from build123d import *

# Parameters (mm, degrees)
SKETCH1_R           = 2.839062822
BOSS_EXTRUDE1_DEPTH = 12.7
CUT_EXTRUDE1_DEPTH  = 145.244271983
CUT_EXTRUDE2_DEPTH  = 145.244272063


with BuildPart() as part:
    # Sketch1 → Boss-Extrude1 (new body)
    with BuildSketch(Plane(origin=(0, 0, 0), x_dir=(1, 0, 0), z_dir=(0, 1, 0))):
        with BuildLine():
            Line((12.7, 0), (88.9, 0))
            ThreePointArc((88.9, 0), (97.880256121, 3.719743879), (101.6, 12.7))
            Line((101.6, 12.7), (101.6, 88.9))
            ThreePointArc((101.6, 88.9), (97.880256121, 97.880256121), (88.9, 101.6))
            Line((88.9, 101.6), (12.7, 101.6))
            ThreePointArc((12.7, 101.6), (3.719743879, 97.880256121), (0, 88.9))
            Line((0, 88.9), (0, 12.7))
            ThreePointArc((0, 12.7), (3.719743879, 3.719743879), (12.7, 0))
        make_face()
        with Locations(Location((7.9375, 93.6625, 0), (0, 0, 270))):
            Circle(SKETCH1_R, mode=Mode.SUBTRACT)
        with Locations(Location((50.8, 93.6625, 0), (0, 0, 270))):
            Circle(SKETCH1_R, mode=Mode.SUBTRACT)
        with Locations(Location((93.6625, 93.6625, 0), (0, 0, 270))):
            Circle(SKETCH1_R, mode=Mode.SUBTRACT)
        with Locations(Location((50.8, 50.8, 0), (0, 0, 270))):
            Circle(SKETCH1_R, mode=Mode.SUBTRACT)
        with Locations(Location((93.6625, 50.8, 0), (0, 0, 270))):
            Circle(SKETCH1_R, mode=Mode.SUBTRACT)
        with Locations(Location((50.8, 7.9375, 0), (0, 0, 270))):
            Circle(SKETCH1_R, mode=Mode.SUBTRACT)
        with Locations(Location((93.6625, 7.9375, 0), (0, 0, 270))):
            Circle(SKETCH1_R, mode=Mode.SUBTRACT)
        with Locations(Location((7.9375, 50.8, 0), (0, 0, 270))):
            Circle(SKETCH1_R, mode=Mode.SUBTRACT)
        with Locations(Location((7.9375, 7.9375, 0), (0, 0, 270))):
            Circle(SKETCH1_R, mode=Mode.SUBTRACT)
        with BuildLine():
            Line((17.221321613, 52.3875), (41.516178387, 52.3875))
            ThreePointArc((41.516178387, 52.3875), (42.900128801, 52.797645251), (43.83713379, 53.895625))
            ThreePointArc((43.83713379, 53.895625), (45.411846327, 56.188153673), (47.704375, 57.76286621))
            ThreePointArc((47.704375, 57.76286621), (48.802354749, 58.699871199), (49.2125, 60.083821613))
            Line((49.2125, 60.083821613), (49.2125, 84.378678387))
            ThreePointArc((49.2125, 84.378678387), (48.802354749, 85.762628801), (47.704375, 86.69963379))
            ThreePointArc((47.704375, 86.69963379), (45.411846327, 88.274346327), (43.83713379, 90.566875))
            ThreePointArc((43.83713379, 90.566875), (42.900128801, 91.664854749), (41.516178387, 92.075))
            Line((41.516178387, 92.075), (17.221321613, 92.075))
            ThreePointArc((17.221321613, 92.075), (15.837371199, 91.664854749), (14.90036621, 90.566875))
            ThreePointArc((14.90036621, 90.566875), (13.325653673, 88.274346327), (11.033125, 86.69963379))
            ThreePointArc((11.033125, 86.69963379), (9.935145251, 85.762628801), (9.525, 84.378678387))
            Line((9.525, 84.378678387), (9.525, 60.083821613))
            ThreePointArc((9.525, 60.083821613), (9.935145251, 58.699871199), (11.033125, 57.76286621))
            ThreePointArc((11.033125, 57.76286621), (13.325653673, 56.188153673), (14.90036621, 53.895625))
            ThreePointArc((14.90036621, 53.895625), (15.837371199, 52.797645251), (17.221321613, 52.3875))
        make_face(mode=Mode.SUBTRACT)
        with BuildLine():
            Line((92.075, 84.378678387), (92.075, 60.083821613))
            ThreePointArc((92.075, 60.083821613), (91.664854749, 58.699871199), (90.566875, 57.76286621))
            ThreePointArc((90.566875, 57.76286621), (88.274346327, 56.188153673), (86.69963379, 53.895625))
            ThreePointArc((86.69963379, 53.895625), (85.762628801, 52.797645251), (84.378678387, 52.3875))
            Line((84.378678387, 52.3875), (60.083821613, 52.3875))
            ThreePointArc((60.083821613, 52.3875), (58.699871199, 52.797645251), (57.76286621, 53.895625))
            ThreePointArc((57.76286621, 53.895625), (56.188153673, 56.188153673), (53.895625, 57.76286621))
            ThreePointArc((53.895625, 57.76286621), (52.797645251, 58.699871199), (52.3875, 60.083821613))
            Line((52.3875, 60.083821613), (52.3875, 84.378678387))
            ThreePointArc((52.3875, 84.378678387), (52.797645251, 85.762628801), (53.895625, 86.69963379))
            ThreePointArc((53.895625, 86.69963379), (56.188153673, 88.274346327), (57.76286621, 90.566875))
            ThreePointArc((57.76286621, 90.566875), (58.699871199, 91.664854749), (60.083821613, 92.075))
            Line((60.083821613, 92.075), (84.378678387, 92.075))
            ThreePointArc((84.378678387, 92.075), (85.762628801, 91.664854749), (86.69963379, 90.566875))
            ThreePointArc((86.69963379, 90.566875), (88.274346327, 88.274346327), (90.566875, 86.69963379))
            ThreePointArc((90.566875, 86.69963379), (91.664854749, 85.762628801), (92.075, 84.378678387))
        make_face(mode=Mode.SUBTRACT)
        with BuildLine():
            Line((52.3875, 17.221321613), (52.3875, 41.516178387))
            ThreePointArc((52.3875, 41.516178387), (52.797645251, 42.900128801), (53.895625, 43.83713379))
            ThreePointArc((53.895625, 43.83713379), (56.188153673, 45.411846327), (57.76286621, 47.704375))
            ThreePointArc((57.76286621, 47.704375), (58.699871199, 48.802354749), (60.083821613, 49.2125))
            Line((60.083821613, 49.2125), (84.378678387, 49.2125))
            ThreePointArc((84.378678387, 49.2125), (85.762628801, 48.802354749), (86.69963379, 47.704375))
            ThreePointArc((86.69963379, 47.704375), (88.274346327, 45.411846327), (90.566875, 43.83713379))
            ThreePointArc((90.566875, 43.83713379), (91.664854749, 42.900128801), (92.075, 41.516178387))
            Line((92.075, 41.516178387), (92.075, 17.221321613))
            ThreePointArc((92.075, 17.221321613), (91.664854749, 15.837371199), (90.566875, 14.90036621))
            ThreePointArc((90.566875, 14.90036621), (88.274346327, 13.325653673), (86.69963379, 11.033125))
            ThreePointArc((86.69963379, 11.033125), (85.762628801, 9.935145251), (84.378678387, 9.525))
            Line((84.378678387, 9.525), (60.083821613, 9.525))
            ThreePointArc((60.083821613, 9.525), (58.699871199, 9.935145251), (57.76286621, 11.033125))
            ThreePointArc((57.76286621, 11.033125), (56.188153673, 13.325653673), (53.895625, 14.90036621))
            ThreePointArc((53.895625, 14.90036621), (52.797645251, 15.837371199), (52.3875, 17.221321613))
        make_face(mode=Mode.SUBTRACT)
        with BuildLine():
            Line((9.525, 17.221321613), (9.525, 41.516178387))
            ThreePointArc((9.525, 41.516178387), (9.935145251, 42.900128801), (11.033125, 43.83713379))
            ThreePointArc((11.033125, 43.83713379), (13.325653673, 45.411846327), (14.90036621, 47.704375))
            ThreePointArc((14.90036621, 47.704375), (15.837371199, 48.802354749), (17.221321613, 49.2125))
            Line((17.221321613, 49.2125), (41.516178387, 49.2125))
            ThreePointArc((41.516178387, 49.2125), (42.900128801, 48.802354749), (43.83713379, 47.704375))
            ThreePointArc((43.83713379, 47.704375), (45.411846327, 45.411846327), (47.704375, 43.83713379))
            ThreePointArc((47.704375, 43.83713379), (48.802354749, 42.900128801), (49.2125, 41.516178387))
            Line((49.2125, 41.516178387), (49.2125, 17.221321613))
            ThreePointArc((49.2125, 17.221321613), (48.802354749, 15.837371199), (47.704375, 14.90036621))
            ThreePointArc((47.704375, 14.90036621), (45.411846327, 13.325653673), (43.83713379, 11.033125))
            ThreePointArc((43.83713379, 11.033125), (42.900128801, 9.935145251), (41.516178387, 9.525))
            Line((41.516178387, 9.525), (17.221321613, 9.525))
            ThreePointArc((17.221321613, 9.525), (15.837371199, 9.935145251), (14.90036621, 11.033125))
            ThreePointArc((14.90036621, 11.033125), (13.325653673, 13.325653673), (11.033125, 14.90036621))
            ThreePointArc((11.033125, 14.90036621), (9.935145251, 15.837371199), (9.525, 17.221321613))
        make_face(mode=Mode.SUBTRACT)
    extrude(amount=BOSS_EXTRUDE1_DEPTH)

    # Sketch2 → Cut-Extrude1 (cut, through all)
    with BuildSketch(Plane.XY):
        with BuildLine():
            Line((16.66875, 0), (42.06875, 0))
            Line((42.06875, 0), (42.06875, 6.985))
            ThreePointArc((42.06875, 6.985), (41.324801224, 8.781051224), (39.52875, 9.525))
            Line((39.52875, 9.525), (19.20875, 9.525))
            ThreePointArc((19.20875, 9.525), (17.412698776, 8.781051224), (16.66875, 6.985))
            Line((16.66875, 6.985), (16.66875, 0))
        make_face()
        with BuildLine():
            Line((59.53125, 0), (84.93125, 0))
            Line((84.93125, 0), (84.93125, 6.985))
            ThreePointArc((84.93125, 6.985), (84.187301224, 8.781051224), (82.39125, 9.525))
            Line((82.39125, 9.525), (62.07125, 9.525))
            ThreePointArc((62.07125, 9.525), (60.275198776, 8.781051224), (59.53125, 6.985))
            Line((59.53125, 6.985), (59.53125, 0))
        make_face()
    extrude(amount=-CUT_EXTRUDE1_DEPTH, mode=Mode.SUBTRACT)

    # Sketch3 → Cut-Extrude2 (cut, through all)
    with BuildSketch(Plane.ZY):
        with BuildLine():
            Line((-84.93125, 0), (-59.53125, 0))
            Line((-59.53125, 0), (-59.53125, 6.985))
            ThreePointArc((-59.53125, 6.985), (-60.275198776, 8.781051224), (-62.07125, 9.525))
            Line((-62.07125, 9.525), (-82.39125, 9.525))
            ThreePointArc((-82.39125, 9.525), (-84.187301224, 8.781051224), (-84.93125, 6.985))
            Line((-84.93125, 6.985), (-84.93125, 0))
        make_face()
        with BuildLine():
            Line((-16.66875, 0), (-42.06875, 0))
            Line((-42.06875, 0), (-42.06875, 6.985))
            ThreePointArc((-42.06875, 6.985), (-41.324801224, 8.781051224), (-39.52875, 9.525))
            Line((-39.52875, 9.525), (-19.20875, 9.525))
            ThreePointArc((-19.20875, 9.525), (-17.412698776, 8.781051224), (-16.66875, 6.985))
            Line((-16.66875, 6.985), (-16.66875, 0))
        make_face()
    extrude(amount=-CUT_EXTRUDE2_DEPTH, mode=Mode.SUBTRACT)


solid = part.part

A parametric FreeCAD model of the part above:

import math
import FreeCAD as App
import Part
import Sketcher
Q = App.Units.Quantity

doc = App.newDocument("Part")
body = doc.addObject("PartDesign::Body", "Body")

sketch1 = body.newObject("Sketcher::SketchObject", "Sketch")
sketch1.AttachmentSupport = (doc.getObject("XZ_Plane"), [""])
sketch1.MapMode = "FlatFace"
sketch1.addGeometry(Part.LineSegment(App.Vector(12.7, 0, 0), App.Vector(88.9, 0, 0)), False)
sketch1.addGeometry(Part.ArcOfCircle(Part.Circle(App.Vector(88.9, -12.7, 0), App.Vector(0, 0, 1), 12.7), math.radians(0), math.radians(90)), False)
sketch1.addGeometry(Part.LineSegment(App.Vector(101.6, -12.7, 0), App.Vector(101.6, -88.9, 0)), False)
sketch1.addGeometry(Part.ArcOfCircle(Part.Circle(App.Vector(88.9, -88.9, 0), App.Vector(0, 0, 1), 12.7), math.radians(-90), math.radians(0)), False)
sketch1.addGeometry(Part.LineSegment(App.Vector(88.9, -101.6, 0), App.Vector(12.7, -101.6, 0)), False)
sketch1.addGeometry(Part.ArcOfCircle(Part.Circle(App.Vector(12.7, -88.9, 0), App.Vector(0, 0, 1), 12.7), math.radians(180), math.radians(270)), False)
sketch1.addGeometry(Part.LineSegment(App.Vector(0, -88.9, 0), App.Vector(0, -12.7, 0)), False)
sketch1.addGeometry(Part.ArcOfCircle(Part.Circle(App.Vector(12.7, -12.7, 0), App.Vector(0, 0, 1), 12.7), math.radians(90), math.radians(180)), False)
sketch1.addGeometry(Part.Circle(App.Vector(7.9, -7.9, 0), App.Vector(0, 0, 1), 2.8), False)
sketch1.addGeometry(Part.ArcOfCircle(Part.Circle(App.Vector(12.1, -17.2, 0), App.Vector(0, 0, 1), 2.5), math.radians(114), math.radians(180)), False)
sketch1.addGeometry(Part.LineSegment(App.Vector(9.5, -17.2, 0), App.Vector(9.5, -41.5, 0)), False)
sketch1.addGeometry(Part.ArcOfCircle(Part.Circle(App.Vector(12.1, -41.5, 0), App.Vector(0, 0, 1), 2.5), math.radians(180), math.radians(246)), False)
sketch1.addGeometry(Part.ArcOfCircle(Part.Circle(App.Vector(7.9, -50.8, 0), App.Vector(0, 0, 1), 7.6), math.radians(24), math.radians(66)), False)
sketch1.addGeometry(Part.ArcOfCircle(Part.Circle(App.Vector(17.2, -46.7, 0), App.Vector(0, 0, 1), 2.5), math.radians(-156), math.radians(-90)), False)
sketch1.addGeometry(Part.LineSegment(App.Vector(17.2, -49.2, 0), App.Vector(41.5, -49.2, 0)), False)
sketch1.addGeometry(Part.ArcOfCircle(Part.Circle(App.Vector(41.5, -46.7, 0), App.Vector(0, 0, 1), 2.5), math.radians(-90), math.radians(-24)), False)
sketch1.addGeometry(Part.ArcOfCircle(Part.Circle(App.Vector(50.8, -50.8, 0), App.Vector(0, 0, 1), 7.6), math.radians(114), math.radians(156)), False)
sketch1.addGeometry(Part.ArcOfCircle(Part.Circle(App.Vector(46.7, -41.5, 0), App.Vector(0, 0, 1), 2.5), math.radians(-66), math.radians(0)), False)
sketch1.addGeometry(Part.LineSegment(App.Vector(49.2, -41.5, 0), App.Vector(49.2, -17.2, 0)), False)
sketch1.addGeometry(Part.ArcOfCircle(Part.Circle(App.Vector(46.7, -17.2, 0), App.Vector(0, 0, 1), 2.5), math.radians(0), math.radians(66)), False)
sketch1.addGeometry(Part.ArcOfCircle(Part.Circle(App.Vector(50.8, -7.9, 0), App.Vector(0, 0, 1), 7.6), math.radians(-156), math.radians(-114)), False)
sketch1.addGeometry(Part.ArcOfCircle(Part.Circle(App.Vector(41.5, -12.1, 0), App.Vector(0, 0, 1), 2.5), math.radians(24), math.radians(90)), False)
sketch1.addGeometry(Part.LineSegment(App.Vector(41.5, -9.5, 0), App.Vector(17.2, -9.5, 0)), False)
sketch1.addGeometry(Part.ArcOfCircle(Part.Circle(App.Vector(17.2, -12.1, 0), App.Vector(0, 0, 1), 2.5), math.radians(90), math.radians(156)), False)
sketch1.addGeometry(Part.ArcOfCircle(Part.Circle(App.Vector(7.9, -7.9, 0), App.Vector(0, 0, 1), 7.6), math.radians(-66), math.radians(-24)), False)
sketch1.addGeometry(Part.Circle(App.Vector(50.8, -7.9, 0), App.Vector(0, 0, 1), 2.8), False)
sketch1.addGeometry(Part.Circle(App.Vector(93.7, -7.9, 0), App.Vector(0, 0, 1), 2.8), False)
sketch1.addGeometry(Part.ArcOfCircle(Part.Circle(App.Vector(54.9, -17.2, 0), App.Vector(0, 0, 1), 2.5), math.radians(114), math.radians(180)), False)
sketch1.addGeometry(Part.LineSegment(App.Vector(52.4, -17.2, 0), App.Vector(52.4, -41.5, 0)), False)
sketch1.addGeometry(Part.ArcOfCircle(Part.Circle(App.Vector(54.9, -41.5, 0), App.Vector(0, 0, 1), 2.5), math.radians(180), math.radians(246)), False)
sketch1.addGeometry(Part.ArcOfCircle(Part.Circle(App.Vector(50.8, -50.8, 0), App.Vector(0, 0, 1), 7.6), math.radians(24), math.radians(66)), False)
sketch1.addGeometry(Part.ArcOfCircle(Part.Circle(App.Vector(60.1, -46.7, 0), App.Vector(0, 0, 1), 2.5), math.radians(-156), math.radians(-90)), False)
sketch1.addGeometry(Part.LineSegment(App.Vector(60.1, -49.2, 0), App.Vector(84.4, -49.2, 0)), False)
sketch1.addGeometry(Part.ArcOfCircle(Part.Circle(App.Vector(84.4, -46.7, 0), App.Vector(0, 0, 1), 2.5), math.radians(-90), math.radians(-24)), False)
sketch1.addGeometry(Part.ArcOfCircle(Part.Circle(App.Vector(93.7, -50.8, 0), App.Vector(0, 0, 1), 7.6), math.radians(114), math.radians(156)), False)
sketch1.addGeometry(Part.ArcOfCircle(Part.Circle(App.Vector(89.5, -41.5, 0), App.Vector(0, 0, 1), 2.5), math.radians(-66), math.radians(0)), False)
sketch1.addGeometry(Part.LineSegment(App.Vector(92.1, -41.5, 0), App.Vector(92.1, -17.2, 0)), False)
sketch1.addGeometry(Part.ArcOfCircle(Part.Circle(App.Vector(89.5, -17.2, 0), App.Vector(0, 0, 1), 2.5), math.radians(0), math.radians(66)), False)
sketch1.addGeometry(Part.ArcOfCircle(Part.Circle(App.Vector(93.7, -7.9, 0), App.Vector(0, 0, 1), 7.6), math.radians(-156), math.radians(-114)), False)
sketch1.addGeometry(Part.ArcOfCircle(Part.Circle(App.Vector(84.4, -12.1, 0), App.Vector(0, 0, 1), 2.5), math.radians(24), math.radians(90)), False)
sketch1.addGeometry(Part.LineSegment(App.Vector(84.4, -9.5, 0), App.Vector(60.1, -9.5, 0)), False)
sketch1.addGeometry(Part.ArcOfCircle(Part.Circle(App.Vector(60.1, -12.1, 0), App.Vector(0, 0, 1), 2.5), math.radians(90), math.radians(156)), False)
sketch1.addGeometry(Part.ArcOfCircle(Part.Circle(App.Vector(50.8, -7.9, 0), App.Vector(0, 0, 1), 7.6), math.radians(-66), math.radians(-24)), False)
sketch1.addGeometry(Part.Circle(App.Vector(7.9, -50.8, 0), App.Vector(0, 0, 1), 2.8), False)
sketch1.addGeometry(Part.LineSegment(App.Vector(41.5, -52.4, 0), App.Vector(17.2, -52.4, 0)), False)
sketch1.addGeometry(Part.ArcOfCircle(Part.Circle(App.Vector(17.2, -54.9, 0), App.Vector(0, 0, 1), 2.5), math.radians(90), math.radians(156)), False)
sketch1.addGeometry(Part.ArcOfCircle(Part.Circle(App.Vector(7.9, -50.8, 0), App.Vector(0, 0, 1), 7.6), math.radians(-66), math.radians(-24)), False)
sketch1.addGeometry(Part.ArcOfCircle(Part.Circle(App.Vector(12.1, -60.1, 0), App.Vector(0, 0, 1), 2.5), math.radians(114), math.radians(180)), False)
sketch1.addGeometry(Part.LineSegment(App.Vector(9.5, -60.1, 0), App.Vector(9.5, -84.4, 0)), False)
sketch1.addGeometry(Part.ArcOfCircle(Part.Circle(App.Vector(12.1, -84.4, 0), App.Vector(0, 0, 1), 2.5), math.radians(180), math.radians(246)), False)
sketch1.addGeometry(Part.ArcOfCircle(Part.Circle(App.Vector(7.9, -93.7, 0), App.Vector(0, 0, 1), 7.6), math.radians(24), math.radians(66)), False)
sketch1.addGeometry(Part.ArcOfCircle(Part.Circle(App.Vector(17.2, -89.5, 0), App.Vector(0, 0, 1), 2.5), math.radians(-156), math.radians(-90)), False)
sketch1.addGeometry(Part.LineSegment(App.Vector(17.2, -92.1, 0), App.Vector(41.5, -92.1, 0)), False)
sketch1.addGeometry(Part.ArcOfCircle(Part.Circle(App.Vector(41.5, -89.5, 0), App.Vector(0, 0, 1), 2.5), math.radians(-90), math.radians(-24)), False)
sketch1.addGeometry(Part.ArcOfCircle(Part.Circle(App.Vector(50.8, -93.7, 0), App.Vector(0, 0, 1), 7.6), math.radians(114), math.radians(156)), False)
sketch1.addGeometry(Part.ArcOfCircle(Part.Circle(App.Vector(46.7, -84.4, 0), App.Vector(0, 0, 1), 2.5), math.radians(-66), math.radians(0)), False)
sketch1.addGeometry(Part.LineSegment(App.Vector(49.2, -84.4, 0), App.Vector(49.2, -60.1, 0)), False)
sketch1.addGeometry(Part.ArcOfCircle(Part.Circle(App.Vector(46.7, -60.1, 0), App.Vector(0, 0, 1), 2.5), math.radians(0), math.radians(66)), False)
sketch1.addGeometry(Part.ArcOfCircle(Part.Circle(App.Vector(50.8, -50.8, 0), App.Vector(0, 0, 1), 7.6), math.radians(-156), math.radians(-114)), False)
sketch1.addGeometry(Part.ArcOfCircle(Part.Circle(App.Vector(41.5, -54.9, 0), App.Vector(0, 0, 1), 2.5), math.radians(24), math.radians(90)), False)
sketch1.addGeometry(Part.Circle(App.Vector(7.9, -93.7, 0), App.Vector(0, 0, 1), 2.8), False)
sketch1.addGeometry(Part.Circle(App.Vector(50.8, -50.8, 0), App.Vector(0, 0, 1), 2.8), False)
sketch1.addGeometry(Part.ArcOfCircle(Part.Circle(App.Vector(89.5, -84.4, 0), App.Vector(0, 0, 1), 2.5), math.radians(-66), math.radians(0)), False)
sketch1.addGeometry(Part.LineSegment(App.Vector(92.1, -84.4, 0), App.Vector(92.1, -60.1, 0)), False)
sketch1.addGeometry(Part.ArcOfCircle(Part.Circle(App.Vector(89.5, -60.1, 0), App.Vector(0, 0, 1), 2.5), math.radians(0), math.radians(66)), False)
sketch1.addGeometry(Part.ArcOfCircle(Part.Circle(App.Vector(93.7, -50.8, 0), App.Vector(0, 0, 1), 7.6), math.radians(-156), math.radians(-114)), False)
sketch1.addGeometry(Part.ArcOfCircle(Part.Circle(App.Vector(84.4, -54.9, 0), App.Vector(0, 0, 1), 2.5), math.radians(24), math.radians(90)), False)
sketch1.addGeometry(Part.LineSegment(App.Vector(84.4, -52.4, 0), App.Vector(60.1, -52.4, 0)), False)
sketch1.addGeometry(Part.ArcOfCircle(Part.Circle(App.Vector(60.1, -54.9, 0), App.Vector(0, 0, 1), 2.5), math.radians(90), math.radians(156)), False)
sketch1.addGeometry(Part.ArcOfCircle(Part.Circle(App.Vector(50.8, -50.8, 0), App.Vector(0, 0, 1), 7.6), math.radians(-66), math.radians(-24)), False)
sketch1.addGeometry(Part.ArcOfCircle(Part.Circle(App.Vector(54.9, -60.1, 0), App.Vector(0, 0, 1), 2.5), math.radians(114), math.radians(180)), False)
sketch1.addGeometry(Part.LineSegment(App.Vector(52.4, -60.1, 0), App.Vector(52.4, -84.4, 0)), False)
sketch1.addGeometry(Part.ArcOfCircle(Part.Circle(App.Vector(54.9, -84.4, 0), App.Vector(0, 0, 1), 2.5), math.radians(180), math.radians(246)), False)
sketch1.addGeometry(Part.ArcOfCircle(Part.Circle(App.Vector(50.8, -93.7, 0), App.Vector(0, 0, 1), 7.6), math.radians(24), math.radians(66)), False)
sketch1.addGeometry(Part.ArcOfCircle(Part.Circle(App.Vector(60.1, -89.5, 0), App.Vector(0, 0, 1), 2.5), math.radians(-156), math.radians(-90)), False)
sketch1.addGeometry(Part.LineSegment(App.Vector(60.1, -92.1, 0), App.Vector(84.4, -92.1, 0)), False)
sketch1.addGeometry(Part.ArcOfCircle(Part.Circle(App.Vector(84.4, -89.5, 0), App.Vector(0, 0, 1), 2.5), math.radians(-90), math.radians(-24)), False)
sketch1.addGeometry(Part.ArcOfCircle(Part.Circle(App.Vector(93.7, -93.7, 0), App.Vector(0, 0, 1), 7.6), math.radians(114), math.radians(156)), False)
sketch1.addGeometry(Part.Circle(App.Vector(93.7, -50.8, 0), App.Vector(0, 0, 1), 2.8), False)
sketch1.addGeometry(Part.Circle(App.Vector(50.8, -93.7, 0), App.Vector(0, 0, 1), 2.8), False)
sketch1.addGeometry(Part.Circle(App.Vector(93.7, -93.7, 0), App.Vector(0, 0, 1), 2.8), False)
sketch1.addConstraint(Sketcher.Constraint("Tangent", 0, 2, 1, 2))
sketch1.addConstraint(Sketcher.Constraint("Tangent", 1, 1, 2, 1))
sketch1.addConstraint(Sketcher.Constraint("Tangent", 2, 2, 3, 2))
sketch1.addConstraint(Sketcher.Constraint("Tangent", 3, 1, 4, 1))
sketch1.addConstraint(Sketcher.Constraint("Tangent", 4, 2, 5, 2))
sketch1.addConstraint(Sketcher.Constraint("Tangent", 5, 1, 6, 1))
sketch1.addConstraint(Sketcher.Constraint("Tangent", 6, 2, 7, 2))
sketch1.addConstraint(Sketcher.Constraint("Tangent", 7, 1, 0, 1))
sketch1.addConstraint(Sketcher.Constraint("Tangent", 9, 2, 10, 1))
sketch1.addConstraint(Sketcher.Constraint("Tangent", 10, 2, 11, 1))
sketch1.addConstraint(Sketcher.Constraint("Tangent", 11, 2, 12, 2))
sketch1.addConstraint(Sketcher.Constraint("Tangent", 12, 1, 13, 1))
sketch1.addConstraint(Sketcher.Constraint("Tangent", 13, 2, 14, 1))
sketch1.addConstraint(Sketcher.Constraint("Tangent", 14, 2, 15, 1))
sketch1.addConstraint(Sketcher.Constraint("Tangent", 15, 2, 16, 2))
sketch1.addConstraint(Sketcher.Constraint("Tangent", 16, 1, 17, 1))
sketch1.addConstraint(Sketcher.Constraint("Tangent", 17, 2, 18, 1))
sketch1.addConstraint(Sketcher.Constraint("Tangent", 18, 2, 19, 1))
sketch1.addConstraint(Sketcher.Constraint("Tangent", 19, 2, 20, 2))
sketch1.addConstraint(Sketcher.Constraint("Tangent", 20, 1, 21, 1))
sketch1.addConstraint(Sketcher.Constraint("Tangent", 21, 2, 22, 1))
sketch1.addConstraint(Sketcher.Constraint("Tangent", 22, 2, 23, 1))
sketch1.addConstraint(Sketcher.Constraint("Tangent", 23, 2, 24, 2))
sketch1.addConstraint(Sketcher.Constraint("Tangent", 24, 1, 9, 1))
sketch1.addConstraint(Sketcher.Constraint("Tangent", 27, 2, 28, 1))
sketch1.addConstraint(Sketcher.Constraint("Tangent", 28, 2, 29, 1))
sketch1.addConstraint(Sketcher.Constraint("Tangent", 29, 2, 30, 2))
sketch1.addConstraint(Sketcher.Constraint("Tangent", 30, 1, 31, 1))
sketch1.addConstraint(Sketcher.Constraint("Tangent", 31, 2, 32, 1))
sketch1.addConstraint(Sketcher.Constraint("Tangent", 32, 2, 33, 1))
sketch1.addConstraint(Sketcher.Constraint("Tangent", 33, 2, 34, 2))
sketch1.addConstraint(Sketcher.Constraint("Tangent", 34, 1, 35, 1))
sketch1.addConstraint(Sketcher.Constraint("Tangent", 35, 2, 36, 1))
sketch1.addConstraint(Sketcher.Constraint("Tangent", 36, 2, 37, 1))
sketch1.addConstraint(Sketcher.Constraint("Tangent", 37, 2, 38, 2))
sketch1.addConstraint(Sketcher.Constraint("Tangent", 38, 1, 39, 1))
sketch1.addConstraint(Sketcher.Constraint("Tangent", 39, 2, 40, 1))
sketch1.addConstraint(Sketcher.Constraint("Tangent", 40, 2, 41, 1))
sketch1.addConstraint(Sketcher.Constraint("Tangent", 41, 2, 42, 2))
sketch1.addConstraint(Sketcher.Constraint("Tangent", 42, 1, 27, 1))
sketch1.addConstraint(Sketcher.Constraint("Tangent", 44, 2, 45, 1))
sketch1.addConstraint(Sketcher.Constraint("Tangent", 45, 2, 46, 2))
sketch1.addConstraint(Sketcher.Constraint("Tangent", 46, 1, 47, 1))
sketch1.addConstraint(Sketcher.Constraint("Tangent", 47, 2, 48, 1))
sketch1.addConstraint(Sketcher.Constraint("Tangent", 48, 2, 49, 1))
sketch1.addConstraint(Sketcher.Constraint("Tangent", 49, 2, 50, 2))
sketch1.addConstraint(Sketcher.Constraint("Tangent", 50, 1, 51, 1))
sketch1.addConstraint(Sketcher.Constraint("Tangent", 51, 2, 52, 1))
sketch1.addConstraint(Sketcher.Constraint("Tangent", 52, 2, 53, 1))
sketch1.addConstraint(Sketcher.Constraint("Tangent", 53, 2, 54, 2))
sketch1.addConstraint(Sketcher.Constraint("Tangent", 54, 1, 55, 1))
sketch1.addConstraint(Sketcher.Constraint("Tangent", 55, 2, 56, 1))
sketch1.addConstraint(Sketcher.Constraint("Tangent", 56, 2, 57, 1))
sketch1.addConstraint(Sketcher.Constraint("Tangent", 57, 2, 58, 2))
sketch1.addConstraint(Sketcher.Constraint("Tangent", 58, 1, 59, 1))
sketch1.addConstraint(Sketcher.Constraint("Tangent", 59, 2, 44, 1))
sketch1.addConstraint(Sketcher.Constraint("Tangent", 62, 2, 63, 1))
sketch1.addConstraint(Sketcher.Constraint("Tangent", 63, 2, 64, 1))
sketch1.addConstraint(Sketcher.Constraint("Tangent", 64, 2, 65, 2))
sketch1.addConstraint(Sketcher.Constraint("Tangent", 65, 1, 66, 1))
sketch1.addConstraint(Sketcher.Constraint("Tangent", 66, 2, 67, 1))
sketch1.addConstraint(Sketcher.Constraint("Tangent", 67, 2, 68, 1))
sketch1.addConstraint(Sketcher.Constraint("Tangent", 68, 2, 69, 2))
sketch1.addConstraint(Sketcher.Constraint("Tangent", 69, 1, 70, 1))
sketch1.addConstraint(Sketcher.Constraint("Tangent", 70, 2, 71, 1))
sketch1.addConstraint(Sketcher.Constraint("Tangent", 71, 2, 72, 1))
sketch1.addConstraint(Sketcher.Constraint("Tangent", 72, 2, 73, 2))
sketch1.addConstraint(Sketcher.Constraint("Tangent", 73, 1, 74, 1))
sketch1.addConstraint(Sketcher.Constraint("Tangent", 74, 2, 75, 1))
sketch1.addConstraint(Sketcher.Constraint("Tangent", 75, 2, 76, 1))
sketch1.addConstraint(Sketcher.Constraint("Tangent", 76, 2, 77, 2))
sketch1.addConstraint(Sketcher.Constraint("Tangent", 77, 1, 62, 1))
sketch1.addConstraint(Sketcher.Constraint("Horizontal", 0))
sketch1.addConstraint(Sketcher.Constraint("Vertical", 2))
sketch1.addConstraint(Sketcher.Constraint("Horizontal", 4))
sketch1.addConstraint(Sketcher.Constraint("Vertical", 6))
sketch1.addConstraint(Sketcher.Constraint("Vertical", 10))
sketch1.addConstraint(Sketcher.Constraint("Horizontal", 14))
sketch1.addConstraint(Sketcher.Constraint("Vertical", 18))
sketch1.addConstraint(Sketcher.Constraint("Horizontal", 22))
sketch1.addConstraint(Sketcher.Constraint("Vertical", 28))
sketch1.addConstraint(Sketcher.Constraint("Horizontal", 32))
sketch1.addConstraint(Sketcher.Constraint("Vertical", 36))
sketch1.addConstraint(Sketcher.Constraint("Horizontal", 40))
sketch1.addConstraint(Sketcher.Constraint("Horizontal", 44))
sketch1.addConstraint(Sketcher.Constraint("Vertical", 48))
sketch1.addConstraint(Sketcher.Constraint("Horizontal", 52))
sketch1.addConstraint(Sketcher.Constraint("Vertical", 56))
sketch1.addConstraint(Sketcher.Constraint("Vertical", 63))
sketch1.addConstraint(Sketcher.Constraint("Horizontal", 67))
sketch1.addConstraint(Sketcher.Constraint("Vertical", 71))
sketch1.addConstraint(Sketcher.Constraint("Horizontal", 75))
sketch1.addConstraint(Sketcher.Constraint("Coincident", 24, 3, 8, 3))
sketch1.addConstraint(Sketcher.Constraint("Coincident", 25, 3, 20, 3))
sketch1.addConstraint(Sketcher.Constraint("Coincident", 30, 3, 16, 3))
sketch1.addConstraint(Sketcher.Constraint("Coincident", 38, 3, 26, 3))
sketch1.addConstraint(Sketcher.Constraint("Coincident", 42, 3, 20, 3))
sketch1.addConstraint(Sketcher.Constraint("Coincident", 43, 3, 12, 3))
sketch1.addConstraint(Sketcher.Constraint("Coincident", 46, 3, 12, 3))
sketch1.addConstraint(Sketcher.Constraint("Coincident", 58, 3, 16, 3))
sketch1.addConstraint(Sketcher.Constraint("Coincident", 60, 3, 50, 3))
sketch1.addConstraint(Sketcher.Constraint("Coincident", 61, 3, 16, 3))
sketch1.addConstraint(Sketcher.Constraint("Coincident", 65, 3, 34, 3))
sketch1.addConstraint(Sketcher.Constraint("Coincident", 69, 3, 16, 3))
sketch1.addConstraint(Sketcher.Constraint("Coincident", 73, 3, 54, 3))
sketch1.addConstraint(Sketcher.Constraint("Coincident", 78, 3, 34, 3))
sketch1.addConstraint(Sketcher.Constraint("Coincident", 79, 3, 54, 3))
sketch1.addConstraint(Sketcher.Constraint("Coincident", 80, 3, 77, 3))
sketch1.addConstraint(Sketcher.Constraint("Equal", 1, 3))
sketch1.addConstraint(Sketcher.Constraint("Equal", 3, 5))
sketch1.addConstraint(Sketcher.Constraint("Equal", 5, 7))
sketch1.addConstraint(Sketcher.Constraint("Equal", 9, 11))
sketch1.addConstraint(Sketcher.Constraint("Equal", 11, 13))
sketch1.addConstraint(Sketcher.Constraint("Equal", 13, 15))
sketch1.addConstraint(Sketcher.Constraint("Equal", 12, 16))
sketch1.addConstraint(Sketcher.Constraint("Equal", 15, 17))
sketch1.addConstraint(Sketcher.Constraint("Equal", 17, 19))
sketch1.addConstraint(Sketcher.Constraint("Equal", 16, 20))
sketch1.addConstraint(Sketcher.Constraint("Equal", 19, 21))
sketch1.addConstraint(Sketcher.Constraint("Equal", 21, 23))
sketch1.addConstraint(Sketcher.Constraint("Equal", 20, 24))
sketch1.addConstraint(Sketcher.Constraint("Equal", 8, 25))
sketch1.addConstraint(Sketcher.Constraint("Equal", 25, 26))
sketch1.addConstraint(Sketcher.Constraint("Equal", 23, 27))
sketch1.addConstraint(Sketcher.Constraint("Equal", 27, 29))
sketch1.addConstraint(Sketcher.Constraint("Equal", 24, 30))
sketch1.addConstraint(Sketcher.Constraint("Equal", 29, 31))
sketch1.addConstraint(Sketcher.Constraint("Equal", 31, 33))
sketch1.addConstraint(Sketcher.Constraint("Equal", 30, 34))
sketch1.addConstraint(Sketcher.Constraint("Equal", 33, 35))
sketch1.addConstraint(Sketcher.Constraint("Equal", 35, 37))
sketch1.addConstraint(Sketcher.Constraint("Equal", 34, 38))
sketch1.addConstraint(Sketcher.Constraint("Equal", 37, 39))
sketch1.addConstraint(Sketcher.Constraint("Equal", 39, 41))
sketch1.addConstraint(Sketcher.Constraint("Equal", 38, 42))
sketch1.addConstraint(Sketcher.Constraint("Equal", 26, 43))
sketch1.addConstraint(Sketcher.Constraint("Equal", 41, 45))
sketch1.addConstraint(Sketcher.Constraint("Equal", 42, 46))
sketch1.addConstraint(Sketcher.Constraint("Equal", 45, 47))
sketch1.addConstraint(Sketcher.Constraint("Equal", 47, 49))
sketch1.addConstraint(Sketcher.Constraint("Equal", 46, 50))
sketch1.addConstraint(Sketcher.Constraint("Equal", 49, 51))
sketch1.addConstraint(Sketcher.Constraint("Equal", 51, 53))
sketch1.addConstraint(Sketcher.Constraint("Equal", 50, 54))
sketch1.addConstraint(Sketcher.Constraint("Equal", 53, 55))
sketch1.addConstraint(Sketcher.Constraint("Equal", 55, 57))
sketch1.addConstraint(Sketcher.Constraint("Equal", 54, 58))
sketch1.addConstraint(Sketcher.Constraint("Equal", 57, 59))
sketch1.addConstraint(Sketcher.Constraint("Equal", 43, 60))
sketch1.addConstraint(Sketcher.Constraint("Equal", 60, 61))
sketch1.addConstraint(Sketcher.Constraint("Equal", 59, 62))
sketch1.addConstraint(Sketcher.Constraint("Equal", 62, 64))
sketch1.addConstraint(Sketcher.Constraint("Equal", 58, 65))
sketch1.addConstraint(Sketcher.Constraint("Equal", 64, 66))
sketch1.addConstraint(Sketcher.Constraint("Equal", 66, 68))
sketch1.addConstraint(Sketcher.Constraint("Equal", 65, 69))
sketch1.addConstraint(Sketcher.Constraint("Equal", 68, 70))
sketch1.addConstraint(Sketcher.Constraint("Equal", 70, 72))
sketch1.addConstraint(Sketcher.Constraint("Equal", 69, 73))
sketch1.addConstraint(Sketcher.Constraint("Equal", 72, 74))
sketch1.addConstraint(Sketcher.Constraint("Equal", 74, 76))
sketch1.addConstraint(Sketcher.Constraint("Equal", 73, 77))
sketch1.addConstraint(Sketcher.Constraint("Equal", 61, 78))
sketch1.addConstraint(Sketcher.Constraint("Equal", 78, 79))
sketch1.addConstraint(Sketcher.Constraint("Equal", 79, 80))
sketch1.addConstraint(Sketcher.Constraint("PointOnObject", 0, 2, -1))
sketch1.addConstraint(Sketcher.Constraint("PointOnObject", 5, 1, -2))
sketch1.addConstraint(Sketcher.Constraint("Horizontal", 12, 3, 16, 3))
sketch1.addConstraint(Sketcher.Constraint("Horizontal", 11, 3, 17, 3))
sketch1.addConstraint(Sketcher.Constraint("Horizontal", 9, 3, 19, 3))
sketch1.addConstraint(Sketcher.Constraint("Horizontal", 8, 3, 20, 3))
sketch1.addConstraint(Sketcher.Constraint("Horizontal", 25, 3, 26, 3))
sketch1.addConstraint(Sketcher.Constraint("Horizontal", 19, 3, 27, 3))
sketch1.addConstraint(Sketcher.Constraint("Horizontal", 17, 3, 29, 3))
sketch1.addConstraint(Sketcher.Constraint("Horizontal", 15, 3, 31, 3))
sketch1.addConstraint(Sketcher.Constraint("Horizontal", 30, 3, 34, 3))
sketch1.addConstraint(Sketcher.Constraint("Horizontal", 29, 3, 35, 3))
sketch1.addConstraint(Sketcher.Constraint("Horizontal", 27, 3, 37, 3))
sketch1.addConstraint(Sketcher.Constraint("Horizontal", 23, 3, 39, 3))
sketch1.addConstraint(Sketcher.Constraint("Horizontal", 50, 3, 54, 3))
sketch1.addConstraint(Sketcher.Constraint("Horizontal", 49, 3, 55, 3))
sketch1.addConstraint(Sketcher.Constraint("Horizontal", 47, 3, 57, 3))
sketch1.addConstraint(Sketcher.Constraint("Horizontal", 55, 3, 62, 3))
sketch1.addConstraint(Sketcher.Constraint("Horizontal", 57, 3, 64, 3))
sketch1.addConstraint(Sketcher.Constraint("Horizontal", 59, 3, 66, 3))
sketch1.addConstraint(Sketcher.Constraint("Horizontal", 64, 3, 70, 3))
sketch1.addConstraint(Sketcher.Constraint("Horizontal", 62, 3, 72, 3))
sketch1.addConstraint(Sketcher.Constraint("Horizontal", 53, 3, 74, 3))
sketch1.addConstraint(Sketcher.Constraint("Horizontal", 73, 3, 77, 3))
sketch1.addConstraint(Sketcher.Constraint("Vertical", 15, 3, 21, 3))
sketch1.addConstraint(Sketcher.Constraint("Vertical", 23, 3, 45, 3))
sketch1.addConstraint(Sketcher.Constraint("Vertical", 11, 3, 47, 3))
sketch1.addConstraint(Sketcher.Constraint("Vertical", 45, 3, 51, 3))
sketch1.addConstraint(Sketcher.Constraint("Equal", 22, 32))
sketch1.addConstraint(Sketcher.Constraint("Equal", 4, 2))
sketch1.addConstraint(Sketcher.Constraint("Equal", 75, 10))
sketch1.addConstraint(Sketcher.Constraint("Equal", 36, 48))
sketch1.addConstraint(Sketcher.Constraint("Radius", 1, Q("0.5 in")))
sketch1.addConstraint(Sketcher.Constraint("Radius", 9, Q("0.1 in")))
sketch1.addConstraint(Sketcher.Constraint("Radius", 12, Q("0.3 in")))
sketch1.addConstraint(Sketcher.Constraint("DistanceX", 0, 1, 0, 2, Q("3 in")))
sketch1.addConstraint(Sketcher.Constraint("DistanceY", 12, 3, -1, 1, Q("2 in")))
sketch1.addConstraint(Sketcher.Constraint("DistanceX", -1, 1, 16, 3, Q("2 in")))
sketch1.addConstraint(Sketcher.Constraint("DistanceX", -1, 1, 8, 3, Q("0.3125 in")))
sketch1.addConstraint(Sketcher.Constraint("DistanceY", 8, 3, -1, 1, Q("0.3125 in")))
sketch1.addConstraint(Sketcher.Constraint("DistanceX", -1, 1, 9, 3, Q("0.475 in")))
sketch1.addConstraint(Sketcher.Constraint("Diameter", 8, Q("5.678126 mm")))
pad1 = body.newObject("PartDesign::Pad", "Pad")
pad1.Profile = sketch1
pad1.Length = Q("0.5 in")
pad1.Reversed = True

sketch2 = body.newObject("Sketcher::SketchObject", "Sketch001")
sketch2.AttachmentSupport = (doc.getObject("XY_Plane"), [""])
sketch2.MapMode = "FlatFace"
sketch2.addGeometry(Part.LineSegment(App.Vector(16.7, 0, 0), App.Vector(42.1, 0, 0)), False)
sketch2.addGeometry(Part.LineSegment(App.Vector(42.1, 0, 0), App.Vector(42.1, 7, 0)), False)
sketch2.addGeometry(Part.ArcOfCircle(Part.Circle(App.Vector(39.5, 7, 0), App.Vector(0, 0, 1), 2.5), math.radians(0), math.radians(90)), False)
sketch2.addGeometry(Part.LineSegment(App.Vector(39.5, 9.5, 0), App.Vector(19.2, 9.5, 0)), False)
sketch2.addGeometry(Part.ArcOfCircle(Part.Circle(App.Vector(19.2, 7, 0), App.Vector(0, 0, 1), 2.5), math.radians(90), math.radians(180)), False)
sketch2.addGeometry(Part.LineSegment(App.Vector(16.7, 7, 0), App.Vector(16.7, 0, 0)), False)
sketch2.addGeometry(Part.LineSegment(App.Vector(59.5, 0, 0), App.Vector(84.9, 0, 0)), False)
sketch2.addGeometry(Part.LineSegment(App.Vector(84.9, 0, 0), App.Vector(84.9, 7, 0)), False)
sketch2.addGeometry(Part.ArcOfCircle(Part.Circle(App.Vector(82.4, 7, 0), App.Vector(0, 0, 1), 2.5), math.radians(0), math.radians(90)), False)
sketch2.addGeometry(Part.LineSegment(App.Vector(82.4, 9.5, 0), App.Vector(62.1, 9.5, 0)), False)
sketch2.addGeometry(Part.ArcOfCircle(Part.Circle(App.Vector(62.1, 7, 0), App.Vector(0, 0, 1), 2.5), math.radians(90), math.radians(180)), False)
sketch2.addGeometry(Part.LineSegment(App.Vector(59.5, 7, 0), App.Vector(59.5, 0, 0)), False)
sketch2.addConstraint(Sketcher.Constraint("Coincident", 0, 2, 1, 1))
sketch2.addConstraint(Sketcher.Constraint("Tangent", 1, 2, 2, 1))
sketch2.addConstraint(Sketcher.Constraint("Tangent", 2, 2, 3, 1))
sketch2.addConstraint(Sketcher.Constraint("Tangent", 3, 2, 4, 1))
sketch2.addConstraint(Sketcher.Constraint("Tangent", 4, 2, 5, 1))
sketch2.addConstraint(Sketcher.Constraint("Coincident", 5, 2, 0, 1))
sketch2.addConstraint(Sketcher.Constraint("Coincident", 6, 2, 7, 1))
sketch2.addConstraint(Sketcher.Constraint("Tangent", 7, 2, 8, 1))
sketch2.addConstraint(Sketcher.Constraint("Tangent", 8, 2, 9, 1))
sketch2.addConstraint(Sketcher.Constraint("Tangent", 9, 2, 10, 1))
sketch2.addConstraint(Sketcher.Constraint("Tangent", 10, 2, 11, 1))
sketch2.addConstraint(Sketcher.Constraint("Coincident", 11, 2, 6, 1))
sketch2.addConstraint(Sketcher.Constraint("Horizontal", 0))
sketch2.addConstraint(Sketcher.Constraint("Vertical", 1))
sketch2.addConstraint(Sketcher.Constraint("Horizontal", 3))
sketch2.addConstraint(Sketcher.Constraint("Vertical", 5))
sketch2.addConstraint(Sketcher.Constraint("Horizontal", 6))
sketch2.addConstraint(Sketcher.Constraint("Vertical", 7))
sketch2.addConstraint(Sketcher.Constraint("Horizontal", 9))
sketch2.addConstraint(Sketcher.Constraint("Vertical", 11))
sketch2.addConstraint(Sketcher.Constraint("Equal", 2, 4))
sketch2.addConstraint(Sketcher.Constraint("Equal", 4, 8))
sketch2.addConstraint(Sketcher.Constraint("Equal", 8, 10))
sketch2.addConstraint(Sketcher.Constraint("PointOnObject", 0, 2, -1))
sketch2.addConstraint(Sketcher.Constraint("PointOnObject", 6, 2, -1))
sketch2.addConstraint(Sketcher.Constraint("Horizontal", 4, 3, 8, 3))
sketch2.addConstraint(Sketcher.Constraint("Equal", 0, 6))
sketch2.addConstraint(Sketcher.Constraint("Radius", 2, Q("0.1 in")))
sketch2.addConstraint(Sketcher.Constraint("DistanceX", 0, 1, 0, 2, Q("1 in")))
sketch2.addConstraint(Sketcher.Constraint("DistanceY", 1, 1, 1, 2, Q("0.275 in")))
sketch2.addConstraint(Sketcher.Constraint("DistanceX", -1, 1, 0, 2, Q("1.65625 in")))
sketch2.addConstraint(Sketcher.Constraint("DistanceX", -1, 1, 6, 2, Q("3.34375 in")))
pocket1 = body.newObject("PartDesign::Pocket", "Pocket")
pocket1.Profile = sketch2
pocket1.Type = "ThroughAll"

sketch3 = body.newObject("Sketcher::SketchObject", "Sketch002")
sketch3.AttachmentSupport = (doc.getObject("YZ_Plane"), [""])
sketch3.MapMode = "FlatFace"
sketch3.addGeometry(Part.LineSegment(App.Vector(0, -84.9, 0), App.Vector(0, -59.5, 0)), False)
sketch3.addGeometry(Part.LineSegment(App.Vector(0, -59.5, 0), App.Vector(7, -59.5, 0)), False)
sketch3.addGeometry(Part.ArcOfCircle(Part.Circle(App.Vector(7, -62.1, 0), App.Vector(0, 0, 1), 2.5), math.radians(0), math.radians(90)), False)
sketch3.addGeometry(Part.LineSegment(App.Vector(9.5, -62.1, 0), App.Vector(9.5, -82.4, 0)), False)
sketch3.addGeometry(Part.ArcOfCircle(Part.Circle(App.Vector(7, -82.4, 0), App.Vector(0, 0, 1), 2.5), math.radians(-90), math.radians(0)), False)
sketch3.addGeometry(Part.LineSegment(App.Vector(7, -84.9, 0), App.Vector(0, -84.9, 0)), False)
sketch3.addGeometry(Part.LineSegment(App.Vector(0, -42.1, 0), App.Vector(0, -16.7, 0)), False)
sketch3.addGeometry(Part.LineSegment(App.Vector(0, -16.7, 0), App.Vector(7, -16.7, 0)), False)
sketch3.addGeometry(Part.ArcOfCircle(Part.Circle(App.Vector(7, -19.2, 0), App.Vector(0, 0, 1), 2.5), math.radians(0), math.radians(90)), False)
sketch3.addGeometry(Part.LineSegment(App.Vector(9.5, -19.2, 0), App.Vector(9.5, -39.5, 0)), False)
sketch3.addGeometry(Part.ArcOfCircle(Part.Circle(App.Vector(7, -39.5, 0), App.Vector(0, 0, 1), 2.5), math.radians(-90), math.radians(0)), False)
sketch3.addGeometry(Part.LineSegment(App.Vector(7, -42.1, 0), App.Vector(0, -42.1, 0)), False)
sketch3.addConstraint(Sketcher.Constraint("Coincident", 0, 2, 1, 1))
sketch3.addConstraint(Sketcher.Constraint("Tangent", 1, 2, 2, 2))
sketch3.addConstraint(Sketcher.Constraint("Tangent", 2, 1, 3, 1))
sketch3.addConstraint(Sketcher.Constraint("Tangent", 3, 2, 4, 2))
sketch3.addConstraint(Sketcher.Constraint("Tangent", 4, 1, 5, 1))
sketch3.addConstraint(Sketcher.Constraint("Coincident", 5, 2, 0, 1))
sketch3.addConstraint(Sketcher.Constraint("Coincident", 6, 2, 7, 1))
sketch3.addConstraint(Sketcher.Constraint("Tangent", 7, 2, 8, 2))
sketch3.addConstraint(Sketcher.Constraint("Tangent", 8, 1, 9, 1))
sketch3.addConstraint(Sketcher.Constraint("Tangent", 9, 2, 10, 2))
sketch3.addConstraint(Sketcher.Constraint("Tangent", 10, 1, 11, 1))
sketch3.addConstraint(Sketcher.Constraint("Coincident", 11, 2, 6, 1))
sketch3.addConstraint(Sketcher.Constraint("Vertical", 0))
sketch3.addConstraint(Sketcher.Constraint("Horizontal", 1))
sketch3.addConstraint(Sketcher.Constraint("Vertical", 3))
sketch3.addConstraint(Sketcher.Constraint("Horizontal", 5))
sketch3.addConstraint(Sketcher.Constraint("Vertical", 6))
sketch3.addConstraint(Sketcher.Constraint("Horizontal", 7))
sketch3.addConstraint(Sketcher.Constraint("Vertical", 9))
sketch3.addConstraint(Sketcher.Constraint("Horizontal", 11))
sketch3.addConstraint(Sketcher.Constraint("Equal", 2, 4))
sketch3.addConstraint(Sketcher.Constraint("Equal", 4, 8))
sketch3.addConstraint(Sketcher.Constraint("Equal", 8, 10))
sketch3.addConstraint(Sketcher.Constraint("PointOnObject", 0, 2, -2))
sketch3.addConstraint(Sketcher.Constraint("PointOnObject", 6, 2, -2))
sketch3.addConstraint(Sketcher.Constraint("Vertical", 4, 3, 8, 3))
sketch3.addConstraint(Sketcher.Constraint("Equal", 0, 6))
sketch3.addConstraint(Sketcher.Constraint("Radius", 2, Q("0.1 in")))
sketch3.addConstraint(Sketcher.Constraint("DistanceY", 0, 1, 0, 2, Q("1 in")))
sketch3.addConstraint(Sketcher.Constraint("DistanceX", 1, 1, 1, 2, Q("0.275 in")))
sketch3.addConstraint(Sketcher.Constraint("DistanceY", 0, 2, -1, 1, Q("2.34375 in")))
sketch3.addConstraint(Sketcher.Constraint("DistanceY", 6, 2, -1, 1, Q("0.65625 in")))
pocket2 = body.newObject("PartDesign::Pocket", "Pocket001")
pocket2.Profile = sketch3
pocket2.Type = "ThroughAll"
pocket2.Reversed = True

doc.recompute()
